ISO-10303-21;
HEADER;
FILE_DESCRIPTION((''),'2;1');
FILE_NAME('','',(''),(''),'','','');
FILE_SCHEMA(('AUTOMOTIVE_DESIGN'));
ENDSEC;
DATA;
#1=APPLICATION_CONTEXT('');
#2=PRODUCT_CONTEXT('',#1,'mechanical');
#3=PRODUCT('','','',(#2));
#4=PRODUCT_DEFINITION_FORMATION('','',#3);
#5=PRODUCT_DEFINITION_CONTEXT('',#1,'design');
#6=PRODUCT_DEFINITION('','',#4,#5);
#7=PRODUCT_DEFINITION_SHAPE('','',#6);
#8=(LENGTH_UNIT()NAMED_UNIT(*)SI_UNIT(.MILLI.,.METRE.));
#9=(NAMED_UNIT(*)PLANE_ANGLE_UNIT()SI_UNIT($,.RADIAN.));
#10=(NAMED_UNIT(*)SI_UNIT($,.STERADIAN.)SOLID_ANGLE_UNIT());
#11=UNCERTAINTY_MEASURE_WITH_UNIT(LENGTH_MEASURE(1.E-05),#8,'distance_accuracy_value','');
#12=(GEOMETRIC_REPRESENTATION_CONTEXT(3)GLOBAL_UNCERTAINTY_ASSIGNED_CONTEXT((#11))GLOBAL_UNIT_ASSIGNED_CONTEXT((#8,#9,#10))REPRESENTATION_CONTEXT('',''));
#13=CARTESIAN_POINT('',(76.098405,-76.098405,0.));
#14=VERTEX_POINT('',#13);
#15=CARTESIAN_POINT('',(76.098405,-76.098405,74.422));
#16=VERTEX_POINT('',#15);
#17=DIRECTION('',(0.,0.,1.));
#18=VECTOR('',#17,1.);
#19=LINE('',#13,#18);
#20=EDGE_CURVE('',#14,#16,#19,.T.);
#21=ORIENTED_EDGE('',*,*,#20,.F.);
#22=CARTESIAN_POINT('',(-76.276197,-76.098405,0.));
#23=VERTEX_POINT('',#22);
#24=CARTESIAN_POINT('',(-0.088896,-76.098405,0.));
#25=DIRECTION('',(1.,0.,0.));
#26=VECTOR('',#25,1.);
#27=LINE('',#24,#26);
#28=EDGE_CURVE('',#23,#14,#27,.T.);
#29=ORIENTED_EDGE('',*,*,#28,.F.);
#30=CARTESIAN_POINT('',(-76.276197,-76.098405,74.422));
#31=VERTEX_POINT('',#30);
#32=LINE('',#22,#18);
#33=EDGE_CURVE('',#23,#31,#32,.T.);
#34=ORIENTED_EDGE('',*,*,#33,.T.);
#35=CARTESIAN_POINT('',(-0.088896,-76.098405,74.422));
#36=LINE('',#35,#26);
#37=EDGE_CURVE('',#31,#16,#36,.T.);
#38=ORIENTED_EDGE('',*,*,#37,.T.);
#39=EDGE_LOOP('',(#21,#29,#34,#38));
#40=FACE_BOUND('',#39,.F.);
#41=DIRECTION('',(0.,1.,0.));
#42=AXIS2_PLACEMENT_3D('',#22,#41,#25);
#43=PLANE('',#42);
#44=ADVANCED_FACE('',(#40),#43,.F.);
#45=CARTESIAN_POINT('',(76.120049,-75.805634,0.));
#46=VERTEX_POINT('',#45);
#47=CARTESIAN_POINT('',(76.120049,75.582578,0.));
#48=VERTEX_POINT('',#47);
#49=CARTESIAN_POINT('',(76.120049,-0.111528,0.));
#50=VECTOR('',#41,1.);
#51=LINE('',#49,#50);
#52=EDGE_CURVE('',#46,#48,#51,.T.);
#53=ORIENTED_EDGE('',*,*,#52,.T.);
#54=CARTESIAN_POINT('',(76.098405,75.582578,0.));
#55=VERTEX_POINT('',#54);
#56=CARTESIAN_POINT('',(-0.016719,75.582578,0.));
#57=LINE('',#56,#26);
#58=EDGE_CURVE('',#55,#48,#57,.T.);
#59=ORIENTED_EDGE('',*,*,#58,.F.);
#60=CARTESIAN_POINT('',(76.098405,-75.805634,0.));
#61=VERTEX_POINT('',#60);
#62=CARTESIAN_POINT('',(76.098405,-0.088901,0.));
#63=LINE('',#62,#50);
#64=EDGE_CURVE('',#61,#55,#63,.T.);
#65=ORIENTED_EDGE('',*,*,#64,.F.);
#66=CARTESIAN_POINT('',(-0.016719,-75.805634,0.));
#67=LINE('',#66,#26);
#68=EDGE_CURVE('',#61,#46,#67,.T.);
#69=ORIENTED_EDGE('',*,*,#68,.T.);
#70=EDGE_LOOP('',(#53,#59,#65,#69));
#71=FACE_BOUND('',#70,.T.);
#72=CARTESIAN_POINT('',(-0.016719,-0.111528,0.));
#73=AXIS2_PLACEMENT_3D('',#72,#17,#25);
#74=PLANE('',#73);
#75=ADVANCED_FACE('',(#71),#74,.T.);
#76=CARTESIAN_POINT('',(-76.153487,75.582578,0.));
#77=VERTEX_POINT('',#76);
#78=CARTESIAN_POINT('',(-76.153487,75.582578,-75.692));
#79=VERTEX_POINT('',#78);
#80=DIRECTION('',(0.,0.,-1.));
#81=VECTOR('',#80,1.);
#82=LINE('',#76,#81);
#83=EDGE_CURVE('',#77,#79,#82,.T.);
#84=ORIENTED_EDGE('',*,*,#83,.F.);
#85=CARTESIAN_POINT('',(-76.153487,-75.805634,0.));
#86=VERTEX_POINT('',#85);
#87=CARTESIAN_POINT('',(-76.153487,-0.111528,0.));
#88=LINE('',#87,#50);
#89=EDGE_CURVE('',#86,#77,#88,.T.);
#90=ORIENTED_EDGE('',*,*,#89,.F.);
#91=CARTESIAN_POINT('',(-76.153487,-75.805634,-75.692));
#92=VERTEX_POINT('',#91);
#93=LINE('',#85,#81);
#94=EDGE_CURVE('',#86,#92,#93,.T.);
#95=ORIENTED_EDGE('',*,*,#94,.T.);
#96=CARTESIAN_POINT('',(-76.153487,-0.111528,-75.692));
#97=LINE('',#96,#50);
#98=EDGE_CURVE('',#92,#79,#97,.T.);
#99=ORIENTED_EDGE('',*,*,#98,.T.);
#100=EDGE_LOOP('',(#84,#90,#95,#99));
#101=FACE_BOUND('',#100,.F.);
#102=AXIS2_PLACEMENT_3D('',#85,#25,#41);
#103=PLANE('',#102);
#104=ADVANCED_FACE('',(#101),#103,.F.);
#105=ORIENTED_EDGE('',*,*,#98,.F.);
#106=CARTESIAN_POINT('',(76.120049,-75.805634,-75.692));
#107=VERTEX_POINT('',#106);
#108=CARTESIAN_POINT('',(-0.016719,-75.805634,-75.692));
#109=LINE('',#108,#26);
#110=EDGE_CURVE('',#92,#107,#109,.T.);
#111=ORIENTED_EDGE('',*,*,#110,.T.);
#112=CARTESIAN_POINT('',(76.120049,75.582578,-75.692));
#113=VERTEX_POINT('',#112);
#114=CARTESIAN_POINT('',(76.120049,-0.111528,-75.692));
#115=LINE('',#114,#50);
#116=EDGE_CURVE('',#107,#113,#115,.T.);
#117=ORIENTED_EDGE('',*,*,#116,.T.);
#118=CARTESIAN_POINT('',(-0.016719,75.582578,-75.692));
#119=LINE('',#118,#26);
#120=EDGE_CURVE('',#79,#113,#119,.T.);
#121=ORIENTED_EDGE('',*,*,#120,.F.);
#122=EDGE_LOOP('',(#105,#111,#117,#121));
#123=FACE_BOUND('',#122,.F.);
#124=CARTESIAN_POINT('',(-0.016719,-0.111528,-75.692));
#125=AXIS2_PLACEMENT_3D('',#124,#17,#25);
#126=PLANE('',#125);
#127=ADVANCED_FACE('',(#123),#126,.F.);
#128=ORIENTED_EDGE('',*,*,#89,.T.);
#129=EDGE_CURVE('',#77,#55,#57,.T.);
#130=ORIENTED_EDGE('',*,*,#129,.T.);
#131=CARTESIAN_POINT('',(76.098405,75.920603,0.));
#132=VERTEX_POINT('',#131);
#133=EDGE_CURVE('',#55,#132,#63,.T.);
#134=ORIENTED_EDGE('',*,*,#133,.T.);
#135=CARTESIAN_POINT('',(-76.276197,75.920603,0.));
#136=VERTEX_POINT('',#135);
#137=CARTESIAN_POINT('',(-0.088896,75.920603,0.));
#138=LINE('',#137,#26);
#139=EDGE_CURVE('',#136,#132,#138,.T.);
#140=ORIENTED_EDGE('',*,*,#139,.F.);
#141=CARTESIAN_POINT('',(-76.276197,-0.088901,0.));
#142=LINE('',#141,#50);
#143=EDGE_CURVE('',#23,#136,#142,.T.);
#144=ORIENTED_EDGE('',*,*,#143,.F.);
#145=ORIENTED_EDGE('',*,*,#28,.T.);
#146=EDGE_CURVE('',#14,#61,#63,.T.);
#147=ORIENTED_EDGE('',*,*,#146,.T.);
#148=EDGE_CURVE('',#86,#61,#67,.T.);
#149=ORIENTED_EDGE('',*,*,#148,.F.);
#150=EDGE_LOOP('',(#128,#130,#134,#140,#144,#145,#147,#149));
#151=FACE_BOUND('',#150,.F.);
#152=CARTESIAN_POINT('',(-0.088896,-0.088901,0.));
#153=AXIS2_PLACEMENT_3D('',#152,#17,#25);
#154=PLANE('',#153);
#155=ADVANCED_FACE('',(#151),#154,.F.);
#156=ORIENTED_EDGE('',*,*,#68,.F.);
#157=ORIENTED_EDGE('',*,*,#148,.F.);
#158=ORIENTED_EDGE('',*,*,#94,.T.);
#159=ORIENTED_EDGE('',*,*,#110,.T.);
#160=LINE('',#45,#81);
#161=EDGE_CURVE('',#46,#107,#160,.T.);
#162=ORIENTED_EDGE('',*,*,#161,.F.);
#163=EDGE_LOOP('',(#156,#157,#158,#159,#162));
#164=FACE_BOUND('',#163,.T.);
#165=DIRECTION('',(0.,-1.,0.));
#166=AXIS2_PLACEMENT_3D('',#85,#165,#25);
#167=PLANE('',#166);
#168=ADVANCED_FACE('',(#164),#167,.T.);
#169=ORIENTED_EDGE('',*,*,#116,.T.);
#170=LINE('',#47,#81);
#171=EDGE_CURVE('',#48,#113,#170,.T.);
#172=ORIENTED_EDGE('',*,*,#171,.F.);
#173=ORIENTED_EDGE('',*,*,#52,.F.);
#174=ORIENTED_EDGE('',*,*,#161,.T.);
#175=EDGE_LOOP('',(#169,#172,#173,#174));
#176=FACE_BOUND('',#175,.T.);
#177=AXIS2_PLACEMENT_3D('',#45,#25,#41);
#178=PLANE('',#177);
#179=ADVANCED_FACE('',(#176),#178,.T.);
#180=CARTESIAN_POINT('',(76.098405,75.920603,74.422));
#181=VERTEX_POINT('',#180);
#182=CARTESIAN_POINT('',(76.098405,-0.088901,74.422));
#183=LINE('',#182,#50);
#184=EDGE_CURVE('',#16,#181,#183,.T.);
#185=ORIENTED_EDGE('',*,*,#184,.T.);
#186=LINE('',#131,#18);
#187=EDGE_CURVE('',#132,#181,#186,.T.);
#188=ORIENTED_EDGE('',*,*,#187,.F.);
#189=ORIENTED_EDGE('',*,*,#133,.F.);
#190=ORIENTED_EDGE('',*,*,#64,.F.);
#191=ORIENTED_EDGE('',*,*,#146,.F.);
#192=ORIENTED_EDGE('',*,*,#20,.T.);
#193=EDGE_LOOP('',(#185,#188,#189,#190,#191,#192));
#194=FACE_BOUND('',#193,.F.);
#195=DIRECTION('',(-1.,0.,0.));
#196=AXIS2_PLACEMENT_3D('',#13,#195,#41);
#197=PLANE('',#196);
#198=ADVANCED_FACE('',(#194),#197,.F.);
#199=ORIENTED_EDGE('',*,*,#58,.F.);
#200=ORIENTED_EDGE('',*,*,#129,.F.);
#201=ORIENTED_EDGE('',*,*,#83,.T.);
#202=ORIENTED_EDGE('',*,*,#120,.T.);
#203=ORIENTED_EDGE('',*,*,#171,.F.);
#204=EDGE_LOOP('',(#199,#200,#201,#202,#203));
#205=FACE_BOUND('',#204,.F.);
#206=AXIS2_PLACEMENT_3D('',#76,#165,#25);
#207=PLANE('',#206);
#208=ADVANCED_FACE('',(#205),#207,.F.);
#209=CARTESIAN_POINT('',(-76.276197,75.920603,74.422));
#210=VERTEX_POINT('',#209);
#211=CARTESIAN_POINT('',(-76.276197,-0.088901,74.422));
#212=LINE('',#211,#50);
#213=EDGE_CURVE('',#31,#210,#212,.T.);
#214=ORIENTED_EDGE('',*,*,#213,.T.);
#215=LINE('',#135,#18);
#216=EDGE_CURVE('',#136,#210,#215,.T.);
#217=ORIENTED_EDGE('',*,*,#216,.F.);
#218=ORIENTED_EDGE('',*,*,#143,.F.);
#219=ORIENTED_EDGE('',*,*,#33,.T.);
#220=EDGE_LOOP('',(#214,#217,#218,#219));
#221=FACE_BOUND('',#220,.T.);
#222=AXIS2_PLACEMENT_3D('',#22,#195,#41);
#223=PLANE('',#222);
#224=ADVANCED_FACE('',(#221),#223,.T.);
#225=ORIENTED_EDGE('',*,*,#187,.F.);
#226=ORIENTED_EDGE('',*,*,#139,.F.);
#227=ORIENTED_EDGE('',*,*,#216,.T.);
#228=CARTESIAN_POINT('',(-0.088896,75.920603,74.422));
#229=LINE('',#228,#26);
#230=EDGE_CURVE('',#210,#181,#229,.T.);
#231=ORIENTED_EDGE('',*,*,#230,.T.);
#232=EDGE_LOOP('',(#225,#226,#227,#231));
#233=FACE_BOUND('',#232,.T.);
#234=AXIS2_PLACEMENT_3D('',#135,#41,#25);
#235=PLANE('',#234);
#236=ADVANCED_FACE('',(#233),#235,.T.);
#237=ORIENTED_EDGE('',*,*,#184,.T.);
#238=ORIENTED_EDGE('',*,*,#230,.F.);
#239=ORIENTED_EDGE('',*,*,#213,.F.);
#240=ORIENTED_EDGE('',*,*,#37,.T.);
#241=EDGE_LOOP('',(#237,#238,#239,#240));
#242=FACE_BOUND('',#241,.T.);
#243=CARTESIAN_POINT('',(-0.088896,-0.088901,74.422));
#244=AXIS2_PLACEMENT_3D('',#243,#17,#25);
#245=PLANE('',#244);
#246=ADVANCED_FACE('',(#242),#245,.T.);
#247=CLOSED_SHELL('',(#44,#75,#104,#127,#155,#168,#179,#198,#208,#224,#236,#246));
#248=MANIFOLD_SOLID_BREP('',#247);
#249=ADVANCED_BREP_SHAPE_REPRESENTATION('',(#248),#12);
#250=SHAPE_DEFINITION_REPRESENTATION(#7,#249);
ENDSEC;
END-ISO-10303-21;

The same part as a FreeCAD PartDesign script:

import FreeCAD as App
import Part
import Sketcher

V = App.Vector
Q = App.Units.Quantity


def add_polygon(sketch, points):
    """Adds a closed chain of lines whose ends are joined by coincident constraints."""
    first, n = sketch.GeometryCount, len(points)
    for a, b in zip(points, points[1:] + points[:1]):
        sketch.addGeometry(Part.LineSegment(App.Vector(*a, 0), App.Vector(*b, 0)), False)
    for i in range(n):
        sketch.addConstraint(Sketcher.Constraint("Coincident", first + i, 2, first + (i + 1) % n, 1))

doc = App.newDocument("Part")
params = doc.addObject("Spreadsheet::Sheet", "Params")
for row, (alias, value) in enumerate([
    ("sketch1_width", "5.9990001 in"),
    ("pad1_length", "2.93 in"),
    ("pad2_length", "2.98 in"),
], start=1):
    params.set(f"A{row}", alias)
    params.set(f"B{row}", "=" + value)
    params.setAlias(f"B{row}", alias)

body = doc.addObject("PartDesign::Body", "Body")

# Sketch on XY plane
sketch1 = doc.addObject("Sketcher::SketchObject", "Sketch")
body.addObject(sketch1)
sketch1.AttachmentSupport = (doc.XY_Plane, [""])
sketch1.MapMode = "FlatFace"
add_polygon(sketch1, [(-76.276197, 75.920603), (-76.276197, -76.098405), (76.098405, -76.098405), (76.098405, 75.920603)])  # lines 0-3
sketch1.addConstraint(Sketcher.Constraint("Vertical", 0))
sketch1.addConstraint(Sketcher.Constraint("Horizontal", 1))
sketch1.addConstraint(Sketcher.Constraint("Vertical", 2))
sketch1.addConstraint(Sketcher.Constraint("Horizontal", 3))
sketch1.addConstraint(Sketcher.Constraint("DistanceX", 1, 1, 1, 2, Q("5.9990001 in")))
sketch1.addConstraint(Sketcher.Constraint("DistanceX", 0, 2, -1, 1, Q("3.0029999 in")))
sketch1.addConstraint(Sketcher.Constraint("DistanceY", -1, 1, 2, 2, Q("2.9890001 in")))
sketch1.addConstraint(Sketcher.Constraint("DistanceY", 0, 2, 0, 1, 152.019009))
sketch1.setExpression("Constraints[8]", "Params.sketch1_width")
pad1 = doc.addObject("PartDesign::Pad", "Pad")
body.addObject(pad1)
pad1.Profile = sketch1
pad1.setExpression("Length", "Params.pad1_length")

# Sketch on XY plane
sketch2 = doc.addObject("Sketcher::SketchObject", "Sketch001")
body.addObject(sketch2)
sketch2.AttachmentSupport = (doc.XY_Plane, [""])
sketch2.MapMode = "FlatFace"
add_polygon(sketch2, [(-76.153487, 75.582578), (-76.153487, -75.805634), (76.120049, -75.805634), (76.120049, 75.582578)])  # lines 0-3
sketch2.addConstraint(Sketcher.Constraint("Vertical", 0))
sketch2.addConstraint(Sketcher.Constraint("Horizontal", 1))
sketch2.addConstraint(Sketcher.Constraint("Vertical", 2))
sketch2.addConstraint(Sketcher.Constraint("Horizontal", 3))
sketch2.addConstraint(Sketcher.Constraint("DistanceX", 1, 1, 1, 2, 152.273536))
sketch2.addConstraint(Sketcher.Constraint("DistanceY", 0, 2, 0, 1, 151.388213))
sketch2.addConstraint(Sketcher.Constraint("DistanceX", -1, 1, 1, 2, 76.120049))
sketch2.addConstraint(Sketcher.Constraint("DistanceY", -1, 1, 2, 2, 75.582578))
pad2 = doc.addObject("PartDesign::Pad", "Pad001")
body.addObject(pad2)
pad2.Profile = sketch2
pad2.setExpression("Length", "Params.pad2_length")
pad2.Reversed = True

doc.recompute()
